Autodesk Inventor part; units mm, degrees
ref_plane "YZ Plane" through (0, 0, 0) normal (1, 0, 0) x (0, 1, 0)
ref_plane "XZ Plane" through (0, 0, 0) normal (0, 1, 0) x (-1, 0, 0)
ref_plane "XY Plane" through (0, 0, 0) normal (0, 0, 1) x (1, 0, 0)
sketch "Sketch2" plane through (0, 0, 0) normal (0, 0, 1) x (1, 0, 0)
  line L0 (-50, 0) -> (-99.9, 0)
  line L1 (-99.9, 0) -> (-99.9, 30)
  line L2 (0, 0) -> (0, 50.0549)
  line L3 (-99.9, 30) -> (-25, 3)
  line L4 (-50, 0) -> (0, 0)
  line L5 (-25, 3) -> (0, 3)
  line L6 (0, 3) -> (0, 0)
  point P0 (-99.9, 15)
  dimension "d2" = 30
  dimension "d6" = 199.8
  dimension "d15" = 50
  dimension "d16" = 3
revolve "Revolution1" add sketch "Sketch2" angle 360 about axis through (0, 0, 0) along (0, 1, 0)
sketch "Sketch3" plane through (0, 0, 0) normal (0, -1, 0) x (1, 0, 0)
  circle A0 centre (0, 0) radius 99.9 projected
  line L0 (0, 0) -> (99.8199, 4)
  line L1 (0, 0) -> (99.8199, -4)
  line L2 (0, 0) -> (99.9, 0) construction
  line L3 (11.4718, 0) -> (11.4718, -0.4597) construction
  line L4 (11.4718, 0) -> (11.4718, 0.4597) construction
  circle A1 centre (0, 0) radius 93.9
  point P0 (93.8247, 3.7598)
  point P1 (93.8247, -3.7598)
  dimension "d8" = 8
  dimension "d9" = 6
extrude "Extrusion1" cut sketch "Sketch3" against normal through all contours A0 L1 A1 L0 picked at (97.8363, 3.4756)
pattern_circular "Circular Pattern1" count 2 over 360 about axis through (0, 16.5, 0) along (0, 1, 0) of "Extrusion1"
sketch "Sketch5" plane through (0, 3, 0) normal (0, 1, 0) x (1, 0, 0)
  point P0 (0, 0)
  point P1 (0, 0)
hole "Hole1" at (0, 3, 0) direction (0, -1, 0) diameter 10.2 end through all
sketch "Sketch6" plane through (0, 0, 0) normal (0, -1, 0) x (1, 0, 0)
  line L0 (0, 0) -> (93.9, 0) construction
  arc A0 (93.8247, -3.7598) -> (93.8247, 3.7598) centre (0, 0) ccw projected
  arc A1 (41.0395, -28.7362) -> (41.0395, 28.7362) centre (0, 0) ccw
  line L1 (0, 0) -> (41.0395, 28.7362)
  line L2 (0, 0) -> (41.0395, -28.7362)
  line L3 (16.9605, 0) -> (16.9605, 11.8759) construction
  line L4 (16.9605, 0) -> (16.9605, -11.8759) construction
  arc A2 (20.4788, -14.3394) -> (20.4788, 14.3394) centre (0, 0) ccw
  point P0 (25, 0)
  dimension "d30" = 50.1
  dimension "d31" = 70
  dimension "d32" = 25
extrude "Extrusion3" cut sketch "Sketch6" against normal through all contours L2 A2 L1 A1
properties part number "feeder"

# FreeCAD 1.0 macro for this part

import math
import FreeCAD as App
import Part
import Sketcher
Q = App.Units.Quantity

doc = App.newDocument("Part")
params = doc.addObject("Spreadsheet::Sheet", "Params")
for row, (alias, value) in enumerate([
    ("sketch1_height", "3 mm"),
    ("sketch1_height2", "30 mm"),
    ("sketch1_width", "25 mm"),
    ("sketch1_width2", "99.9 mm"),
    ("revolution_angle", "360 deg"),
    ("sketch2_length", "6 mm"),
    ("sketch2_radius", "99.9 mm"),
    ("sketch3_diameter", "10.2 mm"),
    ("hole_diameter", "10.2 mm"),
    ("sketch4_radius", "25 mm"),
    ("sketch4_radius2", "50.1 mm"),
], start=1):
    params.set(f"A{row}", alias)
    params.set(f"B{row}", "=" + value)
    params.setAlias(f"B{row}", alias)

body = doc.addObject("PartDesign::Body", "Body")

sketch1 = body.newObject("Sketcher::SketchObject", "Sketch")
sketch1.AttachmentSupport = (doc.getObject("XY_Plane"), [""])
sketch1.MapMode = "FlatFace"
sketch1.addGeometry(Part.LineSegment(App.Vector(-99.9, 0, 0), App.Vector(0, 0, 0)), False)
sketch1.addGeometry(Part.LineSegment(App.Vector(0, 0, 0), App.Vector(0, 3, 0)), False)
sketch1.addGeometry(Part.LineSegment(App.Vector(0, 3, 0), App.Vector(-25, 3, 0)), False)
sketch1.addGeometry(Part.LineSegment(App.Vector(-25, 3, 0), App.Vector(-99.9, 30, 0)), False)
sketch1.addGeometry(Part.LineSegment(App.Vector(-99.9, 30, 0), App.Vector(-99.9, 0, 0)), False)
sketch1.addConstraint(Sketcher.Constraint("Coincident", 0, 2, 1, 1))
sketch1.addConstraint(Sketcher.Constraint("Coincident", 1, 2, 2, 1))
sketch1.addConstraint(Sketcher.Constraint("Coincident", 2, 2, 3, 1))
sketch1.addConstraint(Sketcher.Constraint("Coincident", 3, 2, 4, 1))
sketch1.addConstraint(Sketcher.Constraint("Coincident", 4, 2, 0, 1))
sketch1.addConstraint(Sketcher.Constraint("Horizontal", 0))
sketch1.addConstraint(Sketcher.Constraint("Vertical", 1))
sketch1.addConstraint(Sketcher.Constraint("Horizontal", 2))
sketch1.addConstraint(Sketcher.Constraint("Vertical", 4))
sketch1.addConstraint(Sketcher.Constraint("Coincident", 0, 2, -1, 1))
sketch1.addConstraint(Sketcher.Constraint("DistanceY", 1, 1, 1, 2, Q("3 mm")))
sketch1.addConstraint(Sketcher.Constraint("DistanceY", 4, 2, 4, 1, Q("30 mm")))
sketch1.addConstraint(Sketcher.Constraint("DistanceX", 2, 2, 2, 1, Q("25 mm")))
sketch1.addConstraint(Sketcher.Constraint("DistanceX", 0, 1, 0, 2, Q("99.9 mm")))
sketch1.setExpression("Constraints[10]", "Params.sketch1_height")
sketch1.setExpression("Constraints[11]", "Params.sketch1_height2")
sketch1.setExpression("Constraints[12]", "Params.sketch1_width")
sketch1.setExpression("Constraints[13]", "Params.sketch1_width2")
revolution = body.newObject("PartDesign::Revolution", "Revolution")
revolution.Profile = sketch1
revolution.ReferenceAxis = (sketch1, ["V_Axis"])
revolution.setExpression("Angle", "Params.revolution_angle")

sketch2 = body.newObject("Sketcher::SketchObject", "Sketch001")
sketch2.AttachmentSupport = (doc.getObject("XZ_Plane"), [""])
sketch2.MapMode = "FlatFace"
sketch2.addGeometry(Part.ArcOfCircle(Part.Circle(App.Vector(0, 0, 0), App.Vector(0, 0, 1), 100), math.radians(-2.29), math.radians(2.29)), False)
sketch2.addGeometry(Part.LineSegment(App.Vector(100, 4, 0), App.Vector(94, 4, 0)), False)
sketch2.addGeometry(Part.ArcOfCircle(Part.Circle(App.Vector(0, 0, 0), App.Vector(0, 0, 1), 94), math.radians(-2.29), math.radians(2.29)), False)
sketch2.addGeometry(Part.LineSegment(App.Vector(94, -4, 0), App.Vector(100, -4, 0)), False)
sketch2.addConstraint(Sketcher.Constraint("Coincident", 0, 2, 1, 1))
sketch2.addConstraint(Sketcher.Constraint("Coincident", 1, 2, 2, 2))
sketch2.addConstraint(Sketcher.Constraint("Coincident", 2, 1, 3, 1))
sketch2.addConstraint(Sketcher.Constraint("Coincident", 3, 2, 0, 1))
sketch2.addConstraint(Sketcher.Constraint("Coincident", 0, 3, -1, 1))
sketch2.addConstraint(Sketcher.Constraint("Coincident", 2, 3, -1, 1))
sketch2.addConstraint(Sketcher.Constraint("Vertical", 1, 2, 2, 1))
sketch2.addConstraint(Sketcher.Constraint("Vertical", 0, 2, 3, 2))
sketch2.addConstraint(Sketcher.Constraint("Distance", 1, Q("6 mm")))
sketch2.addConstraint(Sketcher.Constraint("DistanceY", 3, 2, 0, 2, Q("8 mm")))
sketch2.addConstraint(Sketcher.Constraint("Radius", 0, Q("99.9 mm")))
sketch2.addConstraint(Sketcher.Constraint("DistanceX", -1, 1, 1, 2, Q("93.8247 mm")))
sketch2.setExpression("Constraints[8]", "Params.sketch2_length")
sketch2.setExpression("Constraints[10]", "Params.sketch2_radius")
pocket1 = body.newObject("PartDesign::Pocket", "Pocket")
pocket1.Profile = sketch2
pocket1.Type = "ThroughAll"
doc.recompute()

polarpattern = body.newObject("PartDesign::PolarPattern", "PolarPattern")
polarpattern.Originals = [pocket1]
polarpattern.Axis = (doc.getObject("Y_Axis"), [""])
polarpattern.Angle = 360
polarpattern.Occurrences = 2
body.Tip = polarpattern

sketch3 = body.newObject("Sketcher::SketchObject", "Sketch002")
sketch3.AttachmentSupport = (doc.getObject("XZ_Plane"), [""])
sketch3.MapMode = "FlatFace"
sketch3.AttachmentOffset = App.Placement(App.Vector(0, 0, -3), App.Rotation())
sketch3.addGeometry(Part.Circle(App.Vector(0, 0, 0), App.Vector(0, 0, 1), 5), False)
sketch3.addConstraint(Sketcher.Constraint("Coincident", 0, 3, -1, 1))
sketch3.addConstraint(Sketcher.Constraint("Diameter", 0, Q("10.2 mm")))
sketch3.setExpression("Constraints[1]", "Params.sketch3_diameter")
doc.recompute()
hole = body.newObject("PartDesign::Hole", "Hole")
hole.Profile = sketch3
hole.ThreadType = "None"
hole.setExpression("Diameter", "Params.hole_diameter")
hole.DepthType = "ThroughAll"
hole.Reversed = True

sketch4 = body.newObject("Sketcher::SketchObject", "Sketch003")
sketch4.AttachmentSupport = (doc.getObject("XZ_Plane"), [""])
sketch4.MapMode = "FlatFace"
sketch4.addGeometry(Part.LineSegment(App.Vector(20, -14, 0), App.Vector(41, -29, 0)), False)
sketch4.addGeometry(Part.ArcOfCircle(Part.Circle(App.Vector(0, 0, 0), App.Vector(0, 0, 1), 50), math.radians(-35), math.radians(35)), False)
sketch4.addGeometry(Part.LineSegment(App.Vector(41, 29, 0), App.Vector(20, 14, 0)), False)
sketch4.addGeometry(Part.ArcOfCircle(Part.Circle(App.Vector(0, 0, 0), App.Vector(0, 0, 1), 25), math.radians(-35), math.radians(35)), False)
sketch4.addConstraint(Sketcher.Constraint("Coincident", 0, 2, 1, 1))
sketch4.addConstraint(Sketcher.Constraint("Coincident", 1, 2, 2, 1))
sketch4.addConstraint(Sketcher.Constraint("Coincident", 2, 2, 3, 2))
sketch4.addConstraint(Sketcher.Constraint("Coincident", 3, 1, 0, 1))
sketch4.addConstraint(Sketcher.Constraint("Coincident", 1, 3, -1, 1))
sketch4.addConstraint(Sketcher.Constraint("Coincident", 3, 3, -1, 1))
sketch4.addConstraint(Sketcher.Constraint("Vertical", 0, 2, 1, 2))
sketch4.addConstraint(Sketcher.Constraint("Vertical", 2, 2, 3, 1))
sketch4.addConstraint(Sketcher.Constraint("Radius", 3, Q("25 mm")))
sketch4.addConstraint(Sketcher.Constraint("Radius", 1, Q("50.1 mm")))
sketch4.addConstraint(Sketcher.Constraint("Angle", 0, Q("-35 deg")))
sketch4.addConstraint(Sketcher.Constraint("DistanceX", -1, 1, 0, 2, Q("41.0395 mm")))
sketch4.setExpression("Constraints[8]", "Params.sketch4_radius")
sketch4.setExpression("Constraints[9]", "Params.sketch4_radius2")
pocket2 = body.newObject("PartDesign::Pocket", "Pocket001")
pocket2.Profile = sketch4
pocket2.Type = "ThroughAll"

doc.recompute()
